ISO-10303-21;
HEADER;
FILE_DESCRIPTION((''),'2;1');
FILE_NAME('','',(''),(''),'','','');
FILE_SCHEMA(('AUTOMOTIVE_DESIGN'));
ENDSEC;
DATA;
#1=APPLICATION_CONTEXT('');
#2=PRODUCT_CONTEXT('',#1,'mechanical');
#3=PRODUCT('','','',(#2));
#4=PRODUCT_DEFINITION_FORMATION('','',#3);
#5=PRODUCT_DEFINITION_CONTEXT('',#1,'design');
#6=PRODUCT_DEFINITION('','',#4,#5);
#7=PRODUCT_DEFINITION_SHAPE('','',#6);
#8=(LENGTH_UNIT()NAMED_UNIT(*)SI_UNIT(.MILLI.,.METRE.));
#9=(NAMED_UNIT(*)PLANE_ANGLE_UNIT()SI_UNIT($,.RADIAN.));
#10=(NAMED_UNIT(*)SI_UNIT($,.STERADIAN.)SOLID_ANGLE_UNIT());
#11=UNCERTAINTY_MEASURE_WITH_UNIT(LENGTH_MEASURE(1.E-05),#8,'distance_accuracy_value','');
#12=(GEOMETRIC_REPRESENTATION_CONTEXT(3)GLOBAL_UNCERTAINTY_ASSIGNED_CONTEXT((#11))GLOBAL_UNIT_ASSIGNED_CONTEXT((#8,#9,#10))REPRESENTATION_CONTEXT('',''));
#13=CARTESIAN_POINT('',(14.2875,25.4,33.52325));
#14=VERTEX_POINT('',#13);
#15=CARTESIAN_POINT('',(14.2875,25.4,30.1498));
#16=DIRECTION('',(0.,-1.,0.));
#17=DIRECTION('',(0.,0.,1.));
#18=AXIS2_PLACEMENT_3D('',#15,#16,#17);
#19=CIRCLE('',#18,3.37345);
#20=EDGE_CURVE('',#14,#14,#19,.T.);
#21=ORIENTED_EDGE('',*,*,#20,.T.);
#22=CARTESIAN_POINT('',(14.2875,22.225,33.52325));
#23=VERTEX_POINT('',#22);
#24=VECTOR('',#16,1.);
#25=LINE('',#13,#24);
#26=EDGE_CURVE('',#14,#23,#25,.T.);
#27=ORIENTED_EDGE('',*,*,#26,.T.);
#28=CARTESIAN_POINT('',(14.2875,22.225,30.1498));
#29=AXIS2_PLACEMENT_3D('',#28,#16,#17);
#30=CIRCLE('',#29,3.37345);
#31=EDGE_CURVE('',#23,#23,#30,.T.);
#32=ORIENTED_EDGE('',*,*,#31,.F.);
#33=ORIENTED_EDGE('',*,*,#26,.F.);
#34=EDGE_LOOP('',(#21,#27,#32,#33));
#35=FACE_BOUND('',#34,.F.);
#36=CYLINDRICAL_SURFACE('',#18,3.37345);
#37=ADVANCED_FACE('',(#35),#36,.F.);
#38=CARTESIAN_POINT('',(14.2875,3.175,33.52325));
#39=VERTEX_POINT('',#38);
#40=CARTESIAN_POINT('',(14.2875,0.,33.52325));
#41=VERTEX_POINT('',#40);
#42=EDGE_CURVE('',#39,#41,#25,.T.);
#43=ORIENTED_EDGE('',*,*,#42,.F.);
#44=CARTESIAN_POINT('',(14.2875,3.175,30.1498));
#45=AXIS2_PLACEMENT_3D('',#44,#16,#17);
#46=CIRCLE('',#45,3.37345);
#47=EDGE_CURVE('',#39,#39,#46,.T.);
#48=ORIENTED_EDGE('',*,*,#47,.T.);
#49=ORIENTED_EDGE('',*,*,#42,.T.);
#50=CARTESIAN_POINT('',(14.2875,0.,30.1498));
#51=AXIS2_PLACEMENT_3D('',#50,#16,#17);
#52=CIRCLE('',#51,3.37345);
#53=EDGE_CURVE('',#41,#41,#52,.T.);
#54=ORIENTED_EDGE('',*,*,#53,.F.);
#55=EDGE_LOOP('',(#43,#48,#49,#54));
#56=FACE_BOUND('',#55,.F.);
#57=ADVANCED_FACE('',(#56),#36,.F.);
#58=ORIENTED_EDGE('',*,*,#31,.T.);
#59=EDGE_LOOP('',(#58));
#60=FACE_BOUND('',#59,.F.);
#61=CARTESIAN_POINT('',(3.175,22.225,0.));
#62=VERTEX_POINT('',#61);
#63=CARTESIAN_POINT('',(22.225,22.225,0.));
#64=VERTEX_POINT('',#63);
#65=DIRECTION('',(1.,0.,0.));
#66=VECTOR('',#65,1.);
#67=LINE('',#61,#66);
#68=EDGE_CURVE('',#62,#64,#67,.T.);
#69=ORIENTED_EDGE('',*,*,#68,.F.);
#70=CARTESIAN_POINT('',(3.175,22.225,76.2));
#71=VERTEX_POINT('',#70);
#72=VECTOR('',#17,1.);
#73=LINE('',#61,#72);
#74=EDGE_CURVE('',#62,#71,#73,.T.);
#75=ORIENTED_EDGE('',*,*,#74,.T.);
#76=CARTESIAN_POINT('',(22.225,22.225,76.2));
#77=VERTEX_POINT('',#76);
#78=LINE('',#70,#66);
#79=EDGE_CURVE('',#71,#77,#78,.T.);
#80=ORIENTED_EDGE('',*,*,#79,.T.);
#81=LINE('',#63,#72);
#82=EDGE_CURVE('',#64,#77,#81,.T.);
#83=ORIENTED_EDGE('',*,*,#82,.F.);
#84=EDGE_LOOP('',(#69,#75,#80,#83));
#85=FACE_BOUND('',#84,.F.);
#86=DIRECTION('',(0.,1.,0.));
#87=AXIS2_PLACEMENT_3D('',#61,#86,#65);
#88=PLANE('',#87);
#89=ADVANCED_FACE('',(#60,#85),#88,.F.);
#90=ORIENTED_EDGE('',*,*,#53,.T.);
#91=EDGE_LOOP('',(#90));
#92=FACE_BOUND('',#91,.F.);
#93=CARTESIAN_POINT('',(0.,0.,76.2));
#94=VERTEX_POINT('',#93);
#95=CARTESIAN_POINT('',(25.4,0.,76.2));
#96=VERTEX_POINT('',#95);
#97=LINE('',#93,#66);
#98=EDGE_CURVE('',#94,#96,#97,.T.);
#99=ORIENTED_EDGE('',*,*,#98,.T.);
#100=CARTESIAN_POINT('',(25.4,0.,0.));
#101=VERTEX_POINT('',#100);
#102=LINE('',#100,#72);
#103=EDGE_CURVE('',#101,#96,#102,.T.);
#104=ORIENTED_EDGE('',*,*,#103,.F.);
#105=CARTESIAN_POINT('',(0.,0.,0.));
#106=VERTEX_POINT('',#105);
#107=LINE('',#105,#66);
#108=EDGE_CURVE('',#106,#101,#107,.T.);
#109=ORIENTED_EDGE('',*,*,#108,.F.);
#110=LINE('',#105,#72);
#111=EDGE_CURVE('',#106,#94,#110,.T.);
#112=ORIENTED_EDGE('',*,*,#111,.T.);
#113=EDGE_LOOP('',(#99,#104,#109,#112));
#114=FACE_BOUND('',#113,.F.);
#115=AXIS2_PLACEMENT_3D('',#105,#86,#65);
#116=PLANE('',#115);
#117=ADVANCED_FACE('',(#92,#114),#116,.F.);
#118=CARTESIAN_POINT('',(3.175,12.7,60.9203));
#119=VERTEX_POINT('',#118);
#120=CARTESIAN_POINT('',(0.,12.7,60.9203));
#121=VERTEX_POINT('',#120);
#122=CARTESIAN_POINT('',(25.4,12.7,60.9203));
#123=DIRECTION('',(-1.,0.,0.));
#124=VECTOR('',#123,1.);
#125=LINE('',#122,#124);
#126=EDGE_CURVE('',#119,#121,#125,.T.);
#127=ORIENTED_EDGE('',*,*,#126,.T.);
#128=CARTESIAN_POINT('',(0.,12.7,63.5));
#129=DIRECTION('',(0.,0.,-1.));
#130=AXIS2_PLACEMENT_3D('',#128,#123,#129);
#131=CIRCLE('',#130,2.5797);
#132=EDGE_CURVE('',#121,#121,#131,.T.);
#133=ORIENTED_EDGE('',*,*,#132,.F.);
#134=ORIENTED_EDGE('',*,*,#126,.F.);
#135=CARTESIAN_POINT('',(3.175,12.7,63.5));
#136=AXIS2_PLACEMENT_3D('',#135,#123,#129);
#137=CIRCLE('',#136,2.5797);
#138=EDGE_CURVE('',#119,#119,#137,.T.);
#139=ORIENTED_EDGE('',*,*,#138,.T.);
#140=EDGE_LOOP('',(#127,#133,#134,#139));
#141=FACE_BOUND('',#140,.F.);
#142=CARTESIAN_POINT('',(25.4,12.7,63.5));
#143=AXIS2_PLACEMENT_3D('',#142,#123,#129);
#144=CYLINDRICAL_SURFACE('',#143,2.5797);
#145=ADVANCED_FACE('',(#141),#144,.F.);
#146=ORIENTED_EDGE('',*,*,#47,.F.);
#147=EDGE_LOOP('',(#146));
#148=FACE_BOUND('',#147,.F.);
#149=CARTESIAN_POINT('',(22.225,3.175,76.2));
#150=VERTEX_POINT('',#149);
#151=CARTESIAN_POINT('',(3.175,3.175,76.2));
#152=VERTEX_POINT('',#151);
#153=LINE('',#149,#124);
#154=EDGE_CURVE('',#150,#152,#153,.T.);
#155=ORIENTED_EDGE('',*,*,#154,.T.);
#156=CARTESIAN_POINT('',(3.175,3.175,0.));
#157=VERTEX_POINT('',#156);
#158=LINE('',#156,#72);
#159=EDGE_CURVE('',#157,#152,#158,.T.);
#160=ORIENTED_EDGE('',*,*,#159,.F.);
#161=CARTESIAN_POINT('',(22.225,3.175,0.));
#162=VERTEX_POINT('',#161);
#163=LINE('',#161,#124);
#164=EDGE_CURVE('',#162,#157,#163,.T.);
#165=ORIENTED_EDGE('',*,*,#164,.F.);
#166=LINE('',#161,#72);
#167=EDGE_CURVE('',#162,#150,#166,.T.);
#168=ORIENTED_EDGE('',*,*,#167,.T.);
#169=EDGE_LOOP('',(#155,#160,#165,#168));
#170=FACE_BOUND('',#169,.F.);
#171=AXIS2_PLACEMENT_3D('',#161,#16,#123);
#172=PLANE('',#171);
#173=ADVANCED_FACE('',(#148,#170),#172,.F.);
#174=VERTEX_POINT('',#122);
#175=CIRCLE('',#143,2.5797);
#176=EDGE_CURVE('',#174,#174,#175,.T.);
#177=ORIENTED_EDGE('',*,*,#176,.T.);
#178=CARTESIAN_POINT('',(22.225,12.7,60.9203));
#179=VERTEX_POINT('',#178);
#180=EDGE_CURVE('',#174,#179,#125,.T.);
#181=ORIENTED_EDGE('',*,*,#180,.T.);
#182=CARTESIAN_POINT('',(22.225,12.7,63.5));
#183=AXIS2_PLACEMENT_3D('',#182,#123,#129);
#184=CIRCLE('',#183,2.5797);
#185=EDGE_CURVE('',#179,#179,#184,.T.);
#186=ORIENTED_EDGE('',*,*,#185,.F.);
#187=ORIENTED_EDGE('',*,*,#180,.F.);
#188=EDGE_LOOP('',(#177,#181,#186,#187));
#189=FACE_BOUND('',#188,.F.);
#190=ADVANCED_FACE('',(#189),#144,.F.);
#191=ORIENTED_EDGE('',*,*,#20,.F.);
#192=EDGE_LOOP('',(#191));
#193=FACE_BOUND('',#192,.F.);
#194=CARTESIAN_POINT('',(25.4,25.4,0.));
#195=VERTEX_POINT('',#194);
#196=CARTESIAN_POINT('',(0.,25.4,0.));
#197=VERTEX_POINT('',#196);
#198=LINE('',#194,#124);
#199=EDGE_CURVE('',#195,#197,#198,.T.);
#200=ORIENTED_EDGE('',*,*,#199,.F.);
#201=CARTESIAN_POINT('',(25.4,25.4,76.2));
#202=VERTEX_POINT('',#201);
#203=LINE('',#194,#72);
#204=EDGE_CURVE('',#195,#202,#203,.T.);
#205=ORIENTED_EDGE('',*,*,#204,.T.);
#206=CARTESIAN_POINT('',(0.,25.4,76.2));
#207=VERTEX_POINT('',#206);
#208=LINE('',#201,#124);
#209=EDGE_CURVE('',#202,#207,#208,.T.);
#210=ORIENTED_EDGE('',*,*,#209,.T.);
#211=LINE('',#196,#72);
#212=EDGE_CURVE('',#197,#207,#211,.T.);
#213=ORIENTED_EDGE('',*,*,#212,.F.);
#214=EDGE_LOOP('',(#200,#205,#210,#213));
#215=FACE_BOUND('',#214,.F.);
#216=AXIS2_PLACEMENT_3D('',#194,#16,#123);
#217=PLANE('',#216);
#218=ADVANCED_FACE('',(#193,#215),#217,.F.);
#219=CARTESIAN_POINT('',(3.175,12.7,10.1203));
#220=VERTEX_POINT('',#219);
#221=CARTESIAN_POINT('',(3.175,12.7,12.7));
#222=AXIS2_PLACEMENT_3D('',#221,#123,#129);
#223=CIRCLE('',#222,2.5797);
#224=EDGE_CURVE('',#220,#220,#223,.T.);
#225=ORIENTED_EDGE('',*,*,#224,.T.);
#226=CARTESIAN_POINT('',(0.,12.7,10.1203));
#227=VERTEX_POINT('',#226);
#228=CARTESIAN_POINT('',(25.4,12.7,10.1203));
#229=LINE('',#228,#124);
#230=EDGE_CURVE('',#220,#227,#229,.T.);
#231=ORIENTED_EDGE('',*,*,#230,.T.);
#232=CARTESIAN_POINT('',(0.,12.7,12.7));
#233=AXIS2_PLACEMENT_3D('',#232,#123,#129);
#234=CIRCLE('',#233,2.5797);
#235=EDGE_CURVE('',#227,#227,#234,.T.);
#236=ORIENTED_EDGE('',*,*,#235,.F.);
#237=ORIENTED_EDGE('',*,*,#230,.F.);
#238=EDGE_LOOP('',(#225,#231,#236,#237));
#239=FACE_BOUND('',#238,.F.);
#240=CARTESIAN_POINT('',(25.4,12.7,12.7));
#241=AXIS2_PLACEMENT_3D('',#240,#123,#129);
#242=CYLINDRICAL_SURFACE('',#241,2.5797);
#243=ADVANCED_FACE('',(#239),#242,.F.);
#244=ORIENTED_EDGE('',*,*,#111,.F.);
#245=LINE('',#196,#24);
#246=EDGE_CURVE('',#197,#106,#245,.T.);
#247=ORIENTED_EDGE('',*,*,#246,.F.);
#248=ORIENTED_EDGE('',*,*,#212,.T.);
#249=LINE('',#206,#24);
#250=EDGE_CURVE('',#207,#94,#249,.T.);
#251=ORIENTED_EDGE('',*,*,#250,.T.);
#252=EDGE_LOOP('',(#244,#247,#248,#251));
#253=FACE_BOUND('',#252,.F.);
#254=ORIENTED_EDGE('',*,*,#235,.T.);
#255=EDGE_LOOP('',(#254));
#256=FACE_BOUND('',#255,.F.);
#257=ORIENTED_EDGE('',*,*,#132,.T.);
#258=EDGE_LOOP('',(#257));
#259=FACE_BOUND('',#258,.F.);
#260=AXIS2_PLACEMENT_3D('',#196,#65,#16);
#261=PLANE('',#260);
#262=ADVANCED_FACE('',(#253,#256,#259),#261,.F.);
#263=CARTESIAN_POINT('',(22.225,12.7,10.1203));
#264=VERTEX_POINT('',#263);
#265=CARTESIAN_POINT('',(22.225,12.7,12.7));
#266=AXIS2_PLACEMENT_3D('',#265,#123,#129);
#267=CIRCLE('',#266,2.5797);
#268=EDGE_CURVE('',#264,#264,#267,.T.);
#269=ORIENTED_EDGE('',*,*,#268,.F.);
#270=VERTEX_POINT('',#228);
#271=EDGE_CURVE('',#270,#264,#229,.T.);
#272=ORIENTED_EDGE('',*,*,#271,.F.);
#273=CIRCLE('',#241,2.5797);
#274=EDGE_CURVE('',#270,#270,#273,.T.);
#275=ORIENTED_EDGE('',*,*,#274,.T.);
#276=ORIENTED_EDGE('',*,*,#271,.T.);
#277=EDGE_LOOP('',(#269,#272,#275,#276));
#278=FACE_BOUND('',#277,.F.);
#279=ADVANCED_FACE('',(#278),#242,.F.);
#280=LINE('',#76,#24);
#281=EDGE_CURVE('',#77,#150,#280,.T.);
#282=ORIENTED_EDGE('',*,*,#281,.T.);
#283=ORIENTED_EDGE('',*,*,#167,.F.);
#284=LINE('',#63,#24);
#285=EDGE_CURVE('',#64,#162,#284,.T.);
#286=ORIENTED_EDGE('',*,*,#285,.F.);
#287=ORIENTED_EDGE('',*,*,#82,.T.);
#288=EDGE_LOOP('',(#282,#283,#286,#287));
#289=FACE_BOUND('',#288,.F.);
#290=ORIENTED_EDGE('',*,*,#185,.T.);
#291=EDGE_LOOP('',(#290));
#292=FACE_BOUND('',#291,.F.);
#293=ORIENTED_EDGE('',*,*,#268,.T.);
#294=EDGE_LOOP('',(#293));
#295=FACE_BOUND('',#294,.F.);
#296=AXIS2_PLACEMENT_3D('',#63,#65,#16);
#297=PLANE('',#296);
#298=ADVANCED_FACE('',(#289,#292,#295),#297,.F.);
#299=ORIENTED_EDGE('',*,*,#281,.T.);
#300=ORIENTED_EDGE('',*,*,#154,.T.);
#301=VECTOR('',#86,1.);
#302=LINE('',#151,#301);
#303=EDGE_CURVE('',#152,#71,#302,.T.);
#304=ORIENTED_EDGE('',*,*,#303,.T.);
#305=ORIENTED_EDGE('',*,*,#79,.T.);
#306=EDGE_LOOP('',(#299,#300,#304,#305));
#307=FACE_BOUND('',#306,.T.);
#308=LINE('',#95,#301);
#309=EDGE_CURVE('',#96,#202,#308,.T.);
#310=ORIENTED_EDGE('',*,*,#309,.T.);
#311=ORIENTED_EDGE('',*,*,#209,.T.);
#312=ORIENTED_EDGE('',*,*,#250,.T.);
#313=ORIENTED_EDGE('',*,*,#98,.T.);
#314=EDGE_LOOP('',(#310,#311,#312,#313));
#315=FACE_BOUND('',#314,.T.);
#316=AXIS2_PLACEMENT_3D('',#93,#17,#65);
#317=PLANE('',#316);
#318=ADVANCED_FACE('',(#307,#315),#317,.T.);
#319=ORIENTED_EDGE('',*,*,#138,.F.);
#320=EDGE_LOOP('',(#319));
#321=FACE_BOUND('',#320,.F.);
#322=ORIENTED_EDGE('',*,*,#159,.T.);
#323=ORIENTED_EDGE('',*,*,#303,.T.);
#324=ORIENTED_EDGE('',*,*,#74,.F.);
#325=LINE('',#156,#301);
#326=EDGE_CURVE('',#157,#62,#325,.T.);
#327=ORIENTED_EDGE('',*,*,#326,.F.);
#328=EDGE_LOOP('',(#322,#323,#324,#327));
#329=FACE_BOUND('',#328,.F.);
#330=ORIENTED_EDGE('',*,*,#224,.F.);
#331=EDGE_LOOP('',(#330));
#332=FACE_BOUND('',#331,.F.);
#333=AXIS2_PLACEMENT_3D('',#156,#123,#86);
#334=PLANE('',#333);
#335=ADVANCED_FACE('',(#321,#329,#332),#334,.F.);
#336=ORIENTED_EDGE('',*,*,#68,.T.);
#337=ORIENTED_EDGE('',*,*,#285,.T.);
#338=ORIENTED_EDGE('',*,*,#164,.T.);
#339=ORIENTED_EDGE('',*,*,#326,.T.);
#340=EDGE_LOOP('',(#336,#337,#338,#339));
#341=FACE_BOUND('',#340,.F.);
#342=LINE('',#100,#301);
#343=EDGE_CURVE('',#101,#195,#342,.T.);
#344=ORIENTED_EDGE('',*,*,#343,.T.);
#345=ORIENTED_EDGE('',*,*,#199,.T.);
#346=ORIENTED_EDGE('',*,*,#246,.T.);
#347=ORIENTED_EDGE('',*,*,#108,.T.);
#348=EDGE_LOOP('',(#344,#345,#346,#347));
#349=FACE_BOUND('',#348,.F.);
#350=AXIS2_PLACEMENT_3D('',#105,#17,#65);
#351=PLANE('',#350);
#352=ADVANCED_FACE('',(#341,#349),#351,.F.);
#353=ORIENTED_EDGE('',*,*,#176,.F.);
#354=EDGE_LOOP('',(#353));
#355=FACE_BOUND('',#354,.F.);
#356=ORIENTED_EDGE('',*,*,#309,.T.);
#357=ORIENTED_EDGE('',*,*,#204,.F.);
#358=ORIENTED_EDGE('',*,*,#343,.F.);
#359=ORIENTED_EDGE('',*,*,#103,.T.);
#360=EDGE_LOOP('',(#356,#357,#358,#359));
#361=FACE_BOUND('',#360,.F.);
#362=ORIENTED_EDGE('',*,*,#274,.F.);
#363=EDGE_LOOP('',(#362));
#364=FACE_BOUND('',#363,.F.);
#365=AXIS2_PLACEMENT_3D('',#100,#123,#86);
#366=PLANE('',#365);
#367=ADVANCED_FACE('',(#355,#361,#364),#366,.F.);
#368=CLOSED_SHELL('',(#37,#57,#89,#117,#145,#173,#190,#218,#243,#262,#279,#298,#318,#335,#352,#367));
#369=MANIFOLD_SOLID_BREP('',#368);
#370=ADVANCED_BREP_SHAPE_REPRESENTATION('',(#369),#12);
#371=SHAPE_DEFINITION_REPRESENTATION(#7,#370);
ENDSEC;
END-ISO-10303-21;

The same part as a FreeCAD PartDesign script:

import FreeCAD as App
import Part
import Sketcher
Q = App.Units.Quantity

doc = App.newDocument("Part")
body = doc.addObject("PartDesign::Body", "Body")

# Sketch on XY plane
sketch1 = body.newObject("Sketcher::SketchObject", "Sketch")
sketch1.AttachmentSupport = (doc.getObject("XY_Plane"), [""])
sketch1.MapMode = "FlatFace"
sketch1.addGeometry([
    Part.LineSegment(App.Vector(0, 25, 0), App.Vector(0, 0, 0)),  # 0
    Part.LineSegment(App.Vector(0, 0, 0), App.Vector(25, 0, 0)),  # 1
    Part.LineSegment(App.Vector(25, 0, 0), App.Vector(25, 25, 0)),  # 2
    Part.LineSegment(App.Vector(25, 25, 0), App.Vector(0, 25, 0)),  # 3
    Part.LineSegment(App.Vector(3, 3, 0), App.Vector(3, 22, 0)),  # 4
    Part.LineSegment(App.Vector(3, 22, 0), App.Vector(22, 22, 0)),  # 5
    Part.LineSegment(App.Vector(22, 22, 0), App.Vector(22, 3, 0)),  # 6
    Part.LineSegment(App.Vector(22, 3, 0), App.Vector(3, 3, 0)),  # 7
], False)
sketch1.addConstraint([
    Sketcher.Constraint("Coincident", 0, 2, 1, 1),
    Sketcher.Constraint("Coincident", 1, 2, 2, 1),
    Sketcher.Constraint("Coincident", 2, 2, 3, 1),
    Sketcher.Constraint("Coincident", 3, 2, 0, 1),
    Sketcher.Constraint("Coincident", 4, 2, 5, 1),
    Sketcher.Constraint("Coincident", 5, 2, 6, 1),
    Sketcher.Constraint("Coincident", 6, 2, 7, 1),
    Sketcher.Constraint("Coincident", 7, 2, 4, 1),
    Sketcher.Constraint("Vertical", 0),
    Sketcher.Constraint("Horizontal", 1),
    Sketcher.Constraint("Vertical", 2),
    Sketcher.Constraint("Horizontal", 3),
    Sketcher.Constraint("Vertical", 4),
    Sketcher.Constraint("Horizontal", 5),
    Sketcher.Constraint("Vertical", 6),
    Sketcher.Constraint("Horizontal", 7),
    Sketcher.Constraint("Coincident", 0, 2, -1, 1),
    Sketcher.Constraint("Equal", 3, 0),
    Sketcher.Constraint("Equal", 7, 4),
    Sketcher.Constraint("DistanceX", 1, 1, 1, 2, Q("1 in")),
    Sketcher.Constraint("DistanceX", -1, 1, 4, 2, Q("0.125 in")),
    Sketcher.Constraint("DistanceY", -1, 1, 6, 2, Q("0.125 in")),
    Sketcher.Constraint("DistanceY", 4, 2, 3, 2, Q("0.125 in")),
])
pad1 = body.newObject("PartDesign::Pad", "Pad")
pad1.Profile = sketch1
pad1.Length = Q("3 in")

# Sketch on YZ plane
sketch2 = body.newObject("Sketcher::SketchObject", "Sketch001")
sketch2.AttachmentSupport = (doc.getObject("YZ_Plane"), [""])
sketch2.MapMode = "FlatFace"
sketch2.AttachmentOffset = App.Placement(App.Vector(0, 0, 1 * 25.4), App.Rotation())
sketch2.addGeometry([
    Part.Circle(App.Vector(12.7, 63.5, 0), App.Vector(0, 0, 1), 2.6),
    Part.Circle(App.Vector(12.7, 12.7, 0), App.Vector(0, 0, 1), 2.6),
], False)
sketch2.addConstraint([
    Sketcher.Constraint("Equal", 0, 1),
    Sketcher.Constraint("Vertical", 0, 3, 1, 3),
    Sketcher.Constraint("Diameter", 0, Q("0.203126 in")),
    Sketcher.Constraint("DistanceY", 1, 3, 0, 3, Q("2 in")),
    Sketcher.Constraint("DistanceX", -1, 1, 0, 3, Q("0.5 in")),
    Sketcher.Constraint("DistanceY", -1, 1, 0, 3, Q("2.5 in")),
])
doc.recompute()
hole = body.newObject("PartDesign::Hole", "Hole")
hole.Profile = sketch2
hole.ThreadType = "None"
hole.Diameter = Q("0.203126 in")
hole.DepthType = "ThroughAll"

# Sketch on XZ plane
sketch3 = body.newObject("Sketcher::SketchObject", "Sketch002")
sketch3.AttachmentSupport = (doc.getObject("XZ_Plane"), [""])
sketch3.MapMode = "FlatFace"
sketch3.AttachmentOffset = App.Placement(App.Vector(0, 0, -1 * 25.4), App.Rotation())
sketch3.addGeometry(Part.Circle(App.Vector(14.3, 30.1, 0), App.Vector(0, 0, 1), 3.4), False)
sketch3.addConstraint([
    Sketcher.Constraint("Diameter", 0, Q("0.2656299 in")),
    Sketcher.Constraint("DistanceX", -1, 1, 0, 3, Q("0.5625 in")),
    Sketcher.Constraint("DistanceY", -1, 1, 0, 3, Q("1.187 in")),
])
doc.recompute()
hole2 = body.newObject("PartDesign::Hole", "Hole001")
hole2.Profile = sketch3
hole2.ThreadType = "None"
hole2.Diameter = Q("0.265626 in")
hole2.DepthType = "ThroughAll"
hole2.Reversed = True

doc.recompute()
